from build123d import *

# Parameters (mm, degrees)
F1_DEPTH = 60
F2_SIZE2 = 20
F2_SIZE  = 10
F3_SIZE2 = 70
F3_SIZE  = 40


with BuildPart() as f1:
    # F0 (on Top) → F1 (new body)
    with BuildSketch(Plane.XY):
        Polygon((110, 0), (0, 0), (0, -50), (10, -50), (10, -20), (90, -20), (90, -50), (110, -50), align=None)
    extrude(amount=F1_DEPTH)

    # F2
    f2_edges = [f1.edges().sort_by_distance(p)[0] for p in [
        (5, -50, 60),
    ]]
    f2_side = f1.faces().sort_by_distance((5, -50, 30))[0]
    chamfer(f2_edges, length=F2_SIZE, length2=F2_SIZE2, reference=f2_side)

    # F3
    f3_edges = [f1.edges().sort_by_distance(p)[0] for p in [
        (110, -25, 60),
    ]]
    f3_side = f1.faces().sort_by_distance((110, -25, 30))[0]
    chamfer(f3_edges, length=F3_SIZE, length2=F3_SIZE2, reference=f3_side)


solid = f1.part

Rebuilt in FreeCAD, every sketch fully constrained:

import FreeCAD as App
import Part
import Sketcher
Q = App.Units.Quantity


def edges_at(feature, points):
    """Names of the edges that pass closest to the given points."""
    edges = feature.Shape.Edges
    near = lambda p: min(range(len(edges)), key=lambda i: edges[i].distToShape(Part.Vertex(*p))[0])
    return sorted({f"Edge{near(p) + 1}" for p in points})

doc = App.newDocument("Part")
params = doc.addObject("Spreadsheet::Sheet", "Params")
for row, (alias, value) in enumerate([
    ("sketch1_width", "110 mm"),
    ("sketch1_width2", "10 mm"),
    ("sketch1_width3", "80 mm"),
    ("sketch1_height", "50 mm"),
    ("sketch1_height2", "30 mm"),
    ("pad1_length", "60 mm"),
    ("chamfer_size", "10 mm"),
    ("chamfer_size2", "20 mm"),
    ("chamfer2_size", "40 mm"),
    ("chamfer2_size2", "70 mm"),
], start=1):
    params.set(f"A{row}", alias)
    params.set(f"B{row}", "=" + value)
    params.setAlias(f"B{row}", alias)

body = doc.addObject("PartDesign::Body", "Body")

sketch1 = body.newObject("Sketcher::SketchObject", "Sketch")
sketch1.AttachmentSupport = (doc.getObject("XY_Plane"), [""])
sketch1.MapMode = "FlatFace"
sketch1.addGeometry([
    Part.LineSegment(App.Vector(110, 0, 0), App.Vector(0, 0, 0)),
    Part.LineSegment(App.Vector(0, 0, 0), App.Vector(0, -50, 0)),
    Part.LineSegment(App.Vector(0, -50, 0), App.Vector(10, -50, 0)),
    Part.LineSegment(App.Vector(10, -50, 0), App.Vector(10, -20, 0)),
    Part.LineSegment(App.Vector(10, -20, 0), App.Vector(90, -20, 0)),
    Part.LineSegment(App.Vector(90, -20, 0), App.Vector(90, -50, 0)),
    Part.LineSegment(App.Vector(90, -50, 0), App.Vector(110, -50, 0)),
    Part.LineSegment(App.Vector(110, -50, 0), App.Vector(110, 0, 0)),
], False)
sketch1.addConstraint([
    Sketcher.Constraint("Coincident", 0, 2, 1, 1),
    Sketcher.Constraint("Coincident", 1, 2, 2, 1),
    Sketcher.Constraint("Coincident", 2, 2, 3, 1),
    Sketcher.Constraint("Coincident", 3, 2, 4, 1),
    Sketcher.Constraint("Coincident", 4, 2, 5, 1),
    Sketcher.Constraint("Coincident", 5, 2, 6, 1),
    Sketcher.Constraint("Coincident", 6, 2, 7, 1),
    Sketcher.Constraint("Coincident", 7, 2, 0, 1),
    Sketcher.Constraint("Horizontal", 0),
    Sketcher.Constraint("Vertical", 1),
    Sketcher.Constraint("Horizontal", 2),
    Sketcher.Constraint("Vertical", 3),
    Sketcher.Constraint("Horizontal", 4),
    Sketcher.Constraint("Vertical", 5),
    Sketcher.Constraint("Horizontal", 6),
    Sketcher.Constraint("Vertical", 7),
    Sketcher.Constraint("Coincident", 0, 2, -1, 1),
    Sketcher.Constraint("Horizontal", 2, 2, 5, 2),
    Sketcher.Constraint("DistanceX", 0, 2, 0, 1, Q("110 mm")),
    Sketcher.Constraint("DistanceX", 2, 1, 2, 2, Q("10 mm")),
    Sketcher.Constraint("DistanceX", 4, 1, 4, 2, Q("80 mm")),
    Sketcher.Constraint("DistanceY", 1, 2, 1, 1, Q("50 mm")),
    Sketcher.Constraint("DistanceY", 3, 1, 3, 2, Q("30 mm")),
])
sketch1.setExpression("Constraints[18]", "Params.sketch1_width")
sketch1.setExpression("Constraints[19]", "Params.sketch1_width2")
sketch1.setExpression("Constraints[20]", "Params.sketch1_width3")
sketch1.setExpression("Constraints[21]", "Params.sketch1_height")
sketch1.setExpression("Constraints[22]", "Params.sketch1_height2")
pad1 = body.newObject("PartDesign::Pad", "Pad")
pad1.Profile = sketch1
pad1.setExpression("Length", "Params.pad1_length")
doc.recompute()

chamfer = body.newObject("PartDesign::Chamfer", "Chamfer")
chamfer.Base = (pad1, edges_at(pad1, [(5, -50, 60)]))
chamfer.ChamferType = "Two distances"
chamfer.setExpression("Size", "Params.chamfer_size")
chamfer.setExpression("Size2", "Params.chamfer_size2")
doc.recompute()

chamfer2 = body.newObject("PartDesign::Chamfer", "Chamfer001")
chamfer2.Base = (chamfer, edges_at(chamfer, [(110, -25, 60)]))
chamfer2.ChamferType = "Two distances"
chamfer2.setExpression("Size", "Params.chamfer2_size")
chamfer2.setExpression("Size2", "Params.chamfer2_size2")
chamfer2.FlipDirection = True

doc.recompute()
